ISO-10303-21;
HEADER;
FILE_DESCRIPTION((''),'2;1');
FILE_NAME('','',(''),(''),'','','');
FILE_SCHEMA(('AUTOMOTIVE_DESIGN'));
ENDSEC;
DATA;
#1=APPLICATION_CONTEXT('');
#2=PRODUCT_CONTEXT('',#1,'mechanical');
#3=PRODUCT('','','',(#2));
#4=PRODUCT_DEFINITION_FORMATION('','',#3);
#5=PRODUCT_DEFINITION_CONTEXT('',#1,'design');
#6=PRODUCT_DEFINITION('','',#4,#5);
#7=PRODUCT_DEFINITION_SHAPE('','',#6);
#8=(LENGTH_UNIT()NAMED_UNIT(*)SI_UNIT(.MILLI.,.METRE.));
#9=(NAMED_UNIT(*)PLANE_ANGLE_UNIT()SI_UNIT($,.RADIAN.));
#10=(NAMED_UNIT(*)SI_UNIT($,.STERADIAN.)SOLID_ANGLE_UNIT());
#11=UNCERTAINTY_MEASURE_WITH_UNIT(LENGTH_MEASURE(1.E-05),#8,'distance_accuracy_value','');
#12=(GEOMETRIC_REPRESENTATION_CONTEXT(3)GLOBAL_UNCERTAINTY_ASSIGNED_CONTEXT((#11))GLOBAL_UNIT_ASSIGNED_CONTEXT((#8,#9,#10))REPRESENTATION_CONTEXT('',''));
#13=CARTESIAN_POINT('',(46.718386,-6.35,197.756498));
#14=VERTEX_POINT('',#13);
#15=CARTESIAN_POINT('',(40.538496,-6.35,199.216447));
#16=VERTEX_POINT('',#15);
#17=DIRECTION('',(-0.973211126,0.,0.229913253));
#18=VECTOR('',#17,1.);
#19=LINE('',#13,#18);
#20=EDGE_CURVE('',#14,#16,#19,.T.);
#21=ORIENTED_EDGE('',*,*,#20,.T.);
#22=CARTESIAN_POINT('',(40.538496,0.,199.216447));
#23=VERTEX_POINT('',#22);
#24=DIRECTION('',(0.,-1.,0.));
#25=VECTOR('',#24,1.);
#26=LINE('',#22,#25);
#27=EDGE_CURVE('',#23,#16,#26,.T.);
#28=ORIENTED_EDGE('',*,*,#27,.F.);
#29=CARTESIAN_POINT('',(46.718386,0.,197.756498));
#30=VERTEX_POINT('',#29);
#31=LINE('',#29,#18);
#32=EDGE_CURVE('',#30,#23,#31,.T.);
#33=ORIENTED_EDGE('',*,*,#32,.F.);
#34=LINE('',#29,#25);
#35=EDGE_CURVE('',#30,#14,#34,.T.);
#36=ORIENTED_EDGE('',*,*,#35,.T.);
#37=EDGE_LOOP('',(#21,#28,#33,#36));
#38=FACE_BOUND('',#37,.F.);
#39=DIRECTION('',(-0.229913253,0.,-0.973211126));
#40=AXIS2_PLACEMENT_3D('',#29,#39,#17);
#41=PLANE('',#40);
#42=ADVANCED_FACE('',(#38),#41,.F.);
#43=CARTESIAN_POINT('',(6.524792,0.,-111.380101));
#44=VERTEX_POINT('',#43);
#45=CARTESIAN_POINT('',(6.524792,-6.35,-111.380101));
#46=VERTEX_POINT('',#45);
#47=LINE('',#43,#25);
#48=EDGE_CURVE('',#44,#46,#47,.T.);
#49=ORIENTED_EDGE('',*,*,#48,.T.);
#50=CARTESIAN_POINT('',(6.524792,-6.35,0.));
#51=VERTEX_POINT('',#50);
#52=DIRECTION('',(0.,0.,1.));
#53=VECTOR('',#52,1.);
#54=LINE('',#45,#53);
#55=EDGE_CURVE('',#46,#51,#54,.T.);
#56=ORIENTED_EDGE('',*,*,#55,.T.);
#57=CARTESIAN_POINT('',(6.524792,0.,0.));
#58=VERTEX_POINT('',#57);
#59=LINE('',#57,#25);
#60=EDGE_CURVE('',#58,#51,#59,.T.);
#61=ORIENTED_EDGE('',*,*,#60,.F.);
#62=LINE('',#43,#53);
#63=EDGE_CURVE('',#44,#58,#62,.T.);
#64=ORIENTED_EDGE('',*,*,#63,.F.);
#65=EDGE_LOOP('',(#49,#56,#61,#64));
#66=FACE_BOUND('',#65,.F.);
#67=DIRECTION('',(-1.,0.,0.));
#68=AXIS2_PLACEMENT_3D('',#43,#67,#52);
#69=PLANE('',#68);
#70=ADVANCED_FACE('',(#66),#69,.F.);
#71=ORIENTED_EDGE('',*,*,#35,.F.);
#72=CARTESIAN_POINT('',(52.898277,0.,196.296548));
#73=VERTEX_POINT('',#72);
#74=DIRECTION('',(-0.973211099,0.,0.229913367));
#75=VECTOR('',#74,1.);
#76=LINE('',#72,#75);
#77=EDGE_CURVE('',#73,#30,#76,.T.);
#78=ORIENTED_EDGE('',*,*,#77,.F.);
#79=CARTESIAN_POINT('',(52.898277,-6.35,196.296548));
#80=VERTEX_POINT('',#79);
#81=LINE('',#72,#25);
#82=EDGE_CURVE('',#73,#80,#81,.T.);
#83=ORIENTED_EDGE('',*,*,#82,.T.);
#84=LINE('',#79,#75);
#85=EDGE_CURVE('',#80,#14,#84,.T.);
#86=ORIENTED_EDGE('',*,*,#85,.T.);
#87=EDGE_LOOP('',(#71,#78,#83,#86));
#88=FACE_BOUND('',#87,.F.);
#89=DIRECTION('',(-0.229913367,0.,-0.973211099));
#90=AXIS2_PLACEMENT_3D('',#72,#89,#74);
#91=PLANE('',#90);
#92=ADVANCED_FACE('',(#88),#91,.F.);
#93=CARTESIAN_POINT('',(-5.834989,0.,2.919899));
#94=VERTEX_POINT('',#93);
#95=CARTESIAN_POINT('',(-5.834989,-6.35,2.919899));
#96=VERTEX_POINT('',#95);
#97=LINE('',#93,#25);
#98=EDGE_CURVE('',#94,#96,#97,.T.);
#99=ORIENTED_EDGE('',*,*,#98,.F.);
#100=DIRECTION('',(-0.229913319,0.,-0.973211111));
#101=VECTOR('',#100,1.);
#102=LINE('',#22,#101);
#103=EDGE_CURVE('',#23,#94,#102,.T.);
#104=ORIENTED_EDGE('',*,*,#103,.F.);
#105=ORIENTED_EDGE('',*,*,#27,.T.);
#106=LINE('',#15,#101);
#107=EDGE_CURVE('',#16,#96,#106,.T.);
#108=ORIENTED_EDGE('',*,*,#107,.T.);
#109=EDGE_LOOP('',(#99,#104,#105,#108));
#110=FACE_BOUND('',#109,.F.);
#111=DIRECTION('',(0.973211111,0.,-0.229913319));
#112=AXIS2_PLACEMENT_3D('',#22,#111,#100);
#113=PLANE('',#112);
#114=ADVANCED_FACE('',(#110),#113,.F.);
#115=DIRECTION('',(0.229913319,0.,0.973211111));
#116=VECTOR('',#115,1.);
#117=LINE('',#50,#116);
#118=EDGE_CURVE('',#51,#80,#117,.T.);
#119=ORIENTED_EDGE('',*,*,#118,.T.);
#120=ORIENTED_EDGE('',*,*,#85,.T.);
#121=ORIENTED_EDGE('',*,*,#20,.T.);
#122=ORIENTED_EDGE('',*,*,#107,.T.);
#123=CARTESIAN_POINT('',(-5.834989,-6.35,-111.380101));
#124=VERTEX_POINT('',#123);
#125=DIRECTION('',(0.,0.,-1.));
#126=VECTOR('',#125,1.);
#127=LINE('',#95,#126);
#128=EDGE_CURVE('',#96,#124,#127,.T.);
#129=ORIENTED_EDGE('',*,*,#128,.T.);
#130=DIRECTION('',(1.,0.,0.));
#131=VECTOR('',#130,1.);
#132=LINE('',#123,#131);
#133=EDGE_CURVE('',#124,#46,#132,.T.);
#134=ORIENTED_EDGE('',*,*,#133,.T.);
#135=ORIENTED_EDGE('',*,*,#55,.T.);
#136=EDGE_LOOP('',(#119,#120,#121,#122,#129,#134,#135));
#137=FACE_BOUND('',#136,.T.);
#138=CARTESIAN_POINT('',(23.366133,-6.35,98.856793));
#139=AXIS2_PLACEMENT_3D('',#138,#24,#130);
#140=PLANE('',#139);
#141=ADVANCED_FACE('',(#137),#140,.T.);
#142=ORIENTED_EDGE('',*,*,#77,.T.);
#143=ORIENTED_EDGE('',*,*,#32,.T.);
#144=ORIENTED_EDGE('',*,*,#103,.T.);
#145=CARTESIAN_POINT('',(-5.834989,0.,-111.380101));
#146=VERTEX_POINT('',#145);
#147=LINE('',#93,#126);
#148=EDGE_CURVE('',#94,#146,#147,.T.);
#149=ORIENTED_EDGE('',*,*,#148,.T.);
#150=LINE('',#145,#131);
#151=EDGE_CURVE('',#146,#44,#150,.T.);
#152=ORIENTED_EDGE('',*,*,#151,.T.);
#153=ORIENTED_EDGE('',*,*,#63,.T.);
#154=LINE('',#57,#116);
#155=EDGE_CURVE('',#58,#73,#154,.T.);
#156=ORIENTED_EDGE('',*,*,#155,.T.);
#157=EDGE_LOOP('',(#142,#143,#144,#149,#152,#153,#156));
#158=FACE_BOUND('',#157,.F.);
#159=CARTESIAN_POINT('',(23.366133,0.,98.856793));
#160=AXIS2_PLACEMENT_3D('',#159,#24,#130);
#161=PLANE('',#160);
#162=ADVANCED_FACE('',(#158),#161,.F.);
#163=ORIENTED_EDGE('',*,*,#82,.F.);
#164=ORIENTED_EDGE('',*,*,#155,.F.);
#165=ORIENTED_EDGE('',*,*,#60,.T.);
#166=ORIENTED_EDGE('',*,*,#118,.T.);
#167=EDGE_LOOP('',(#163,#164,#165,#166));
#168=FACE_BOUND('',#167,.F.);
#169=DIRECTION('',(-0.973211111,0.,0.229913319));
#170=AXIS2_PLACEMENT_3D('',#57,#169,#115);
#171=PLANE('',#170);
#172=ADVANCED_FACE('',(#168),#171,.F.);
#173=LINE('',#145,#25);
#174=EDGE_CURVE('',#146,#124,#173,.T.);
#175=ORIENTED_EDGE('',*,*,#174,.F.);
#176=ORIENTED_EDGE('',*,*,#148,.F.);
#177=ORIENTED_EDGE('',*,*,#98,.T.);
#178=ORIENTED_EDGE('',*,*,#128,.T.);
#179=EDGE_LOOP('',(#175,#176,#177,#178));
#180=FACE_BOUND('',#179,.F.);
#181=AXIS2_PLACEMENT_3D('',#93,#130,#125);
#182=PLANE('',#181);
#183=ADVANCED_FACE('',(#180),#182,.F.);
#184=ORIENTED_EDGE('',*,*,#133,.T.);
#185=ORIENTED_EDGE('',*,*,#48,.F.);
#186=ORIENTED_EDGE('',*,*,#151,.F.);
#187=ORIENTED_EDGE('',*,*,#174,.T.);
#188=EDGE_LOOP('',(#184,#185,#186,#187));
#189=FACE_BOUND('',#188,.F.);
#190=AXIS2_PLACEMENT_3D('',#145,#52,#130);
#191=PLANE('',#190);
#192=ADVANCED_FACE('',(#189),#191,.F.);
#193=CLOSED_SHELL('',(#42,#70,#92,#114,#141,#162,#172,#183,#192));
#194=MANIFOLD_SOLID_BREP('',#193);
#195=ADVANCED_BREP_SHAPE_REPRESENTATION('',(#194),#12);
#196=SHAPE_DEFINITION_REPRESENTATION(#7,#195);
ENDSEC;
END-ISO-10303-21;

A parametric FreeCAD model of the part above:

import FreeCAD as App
import Part
import Sketcher
from FreeCAD import Vector
Q = App.Units.Quantity

doc = App.newDocument("Part")
body = doc.addObject("PartDesign::Body", "Body")

sketch1 = body.newObject("Sketcher::SketchObject", "Sketch")
sketch1.AttachmentSupport = (doc.getObject("XZ_Plane"), [""])
sketch1.MapMode = "FlatFace"
sketch1.addGeometry(Part.LineSegment(Vector(52.898277, 196.296548, 0), Vector(46.718386, 197.756498, 0)), False)
sketch1.addGeometry(Part.LineSegment(Vector(46.718386, 197.756498, 0), Vector(40.538496, 199.216447, 0)), False)
sketch1.addGeometry(Part.LineSegment(Vector(40.538496, 199.216447, 0), Vector(-5.834989, 2.919899, 0)), False)
sketch1.addGeometry(Part.LineSegment(Vector(-5.834989, 2.919899, 0), Vector(-5.834989, -111.380101, 0)), False)
sketch1.addGeometry(Part.LineSegment(Vector(-5.834989, -111.380101, 0), Vector(6.524792, -111.380101, 0)), False)
sketch1.addGeometry(Part.LineSegment(Vector(6.524792, -111.380101, 0), Vector(6.524792, 0, 0)), False)
sketch1.addGeometry(Part.LineSegment(Vector(6.524792, 0, 0), Vector(52.898277, 196.296548, 0)), False)
sketch1.addConstraint(Sketcher.Constraint("Coincident", 0, 2, 1, 1))
sketch1.addConstraint(Sketcher.Constraint("Coincident", 1, 2, 2, 1))
sketch1.addConstraint(Sketcher.Constraint("Coincident", 2, 2, 3, 1))
sketch1.addConstraint(Sketcher.Constraint("Coincident", 3, 2, 4, 1))
sketch1.addConstraint(Sketcher.Constraint("Coincident", 4, 2, 5, 1))
sketch1.addConstraint(Sketcher.Constraint("Coincident", 5, 2, 6, 1))
sketch1.addConstraint(Sketcher.Constraint("Coincident", 6, 2, 0, 1))
sketch1.addConstraint(Sketcher.Constraint("Vertical", 3))
sketch1.addConstraint(Sketcher.Constraint("Horizontal", 4))
sketch1.addConstraint(Sketcher.Constraint("Vertical", 5))
sketch1.addConstraint(Sketcher.Constraint("PointOnObject", 5, 2, -1))
sketch1.addConstraint(Sketcher.Constraint("Parallel", 0, 1))
sketch1.addConstraint(Sketcher.Constraint("Perpendicular", 1, 2))
sketch1.addConstraint(Sketcher.Constraint("Parallel", 2, 6))
sketch1.addConstraint(Sketcher.Constraint("Equal", 0, 1))
sketch1.addConstraint(Sketcher.Constraint("Equal", 2, 6))
sketch1.addConstraint(Sketcher.Constraint("DistanceY", 3, 2, 3, 1, Q("4.5 in")))
sketch1.addConstraint(Sketcher.Constraint("Distance", 0, Q("0.25 in")))
sketch1.addConstraint(Sketcher.Constraint("DistanceY", 5, 1, 5, 2, 111.380101))
sketch1.addConstraint(Sketcher.Constraint("DistanceY", -1, 1, 0, 2, 197.756498))
sketch1.addConstraint(Sketcher.Constraint("DistanceX", 2, 2, -1, 1, 5.834989))
pad1 = body.newObject("PartDesign::Pad", "Pad")
pad1.Profile = sketch1
pad1.Length = Q("0.25 in")

doc.recompute()
